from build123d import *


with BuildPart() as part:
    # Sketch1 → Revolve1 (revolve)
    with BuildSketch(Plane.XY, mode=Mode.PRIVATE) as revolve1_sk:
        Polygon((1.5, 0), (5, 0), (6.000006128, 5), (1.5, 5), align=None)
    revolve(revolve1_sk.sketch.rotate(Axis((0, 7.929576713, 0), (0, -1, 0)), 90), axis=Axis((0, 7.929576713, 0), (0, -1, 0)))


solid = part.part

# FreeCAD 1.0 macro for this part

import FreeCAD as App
import Part
import Sketcher

V = App.Vector
Q = App.Units.Quantity

doc = App.newDocument("Part")
body = doc.addObject("PartDesign::Body", "Body")

sketch1 = body.newObject("Sketcher::SketchObject", "Sketch")
sketch1.AttachmentSupport = (doc.getObject("XY_Plane"), [""])
sketch1.MapMode = "FlatFace"
sketch1.addGeometry([
    Part.LineSegment(V(1.5, 0, 0), V(5, 0, 0)),
    Part.LineSegment(V(5, 0, 0), V(6, 5, 0)),
    Part.LineSegment(V(6, 5, 0), V(1.5, 5, 0)),
    Part.LineSegment(V(1.5, 5, 0), V(1.5, 0, 0)),
], False)
sketch1.addConstraint([
    Sketcher.Constraint("Coincident", 0, 2, 1, 1),
    Sketcher.Constraint("Coincident", 1, 2, 2, 1),
    Sketcher.Constraint("Coincident", 2, 2, 3, 1),
    Sketcher.Constraint("Coincident", 3, 2, 0, 1),
    Sketcher.Constraint("Horizontal", 0),
    Sketcher.Constraint("Horizontal", 2),
    Sketcher.Constraint("Vertical", 3),
    Sketcher.Constraint("PointOnObject", 0, 2, -1),
    Sketcher.Constraint("DistanceY", 3, 2, 3, 1, 5.0),
    Sketcher.Constraint("DistanceX", 0, 1, 0, 2, 3.5),
    Sketcher.Constraint("DistanceX", -1, 1, 0, 2, 5.0),
    Sketcher.Constraint("Angle", 1, Q("78.69 deg")),
])
revolution = body.newObject("PartDesign::Revolution", "Revolution")
revolution.Profile = sketch1
revolution.ReferenceAxis = (sketch1, ["V_Axis"])
revolution.Angle = 360

doc.recompute()
